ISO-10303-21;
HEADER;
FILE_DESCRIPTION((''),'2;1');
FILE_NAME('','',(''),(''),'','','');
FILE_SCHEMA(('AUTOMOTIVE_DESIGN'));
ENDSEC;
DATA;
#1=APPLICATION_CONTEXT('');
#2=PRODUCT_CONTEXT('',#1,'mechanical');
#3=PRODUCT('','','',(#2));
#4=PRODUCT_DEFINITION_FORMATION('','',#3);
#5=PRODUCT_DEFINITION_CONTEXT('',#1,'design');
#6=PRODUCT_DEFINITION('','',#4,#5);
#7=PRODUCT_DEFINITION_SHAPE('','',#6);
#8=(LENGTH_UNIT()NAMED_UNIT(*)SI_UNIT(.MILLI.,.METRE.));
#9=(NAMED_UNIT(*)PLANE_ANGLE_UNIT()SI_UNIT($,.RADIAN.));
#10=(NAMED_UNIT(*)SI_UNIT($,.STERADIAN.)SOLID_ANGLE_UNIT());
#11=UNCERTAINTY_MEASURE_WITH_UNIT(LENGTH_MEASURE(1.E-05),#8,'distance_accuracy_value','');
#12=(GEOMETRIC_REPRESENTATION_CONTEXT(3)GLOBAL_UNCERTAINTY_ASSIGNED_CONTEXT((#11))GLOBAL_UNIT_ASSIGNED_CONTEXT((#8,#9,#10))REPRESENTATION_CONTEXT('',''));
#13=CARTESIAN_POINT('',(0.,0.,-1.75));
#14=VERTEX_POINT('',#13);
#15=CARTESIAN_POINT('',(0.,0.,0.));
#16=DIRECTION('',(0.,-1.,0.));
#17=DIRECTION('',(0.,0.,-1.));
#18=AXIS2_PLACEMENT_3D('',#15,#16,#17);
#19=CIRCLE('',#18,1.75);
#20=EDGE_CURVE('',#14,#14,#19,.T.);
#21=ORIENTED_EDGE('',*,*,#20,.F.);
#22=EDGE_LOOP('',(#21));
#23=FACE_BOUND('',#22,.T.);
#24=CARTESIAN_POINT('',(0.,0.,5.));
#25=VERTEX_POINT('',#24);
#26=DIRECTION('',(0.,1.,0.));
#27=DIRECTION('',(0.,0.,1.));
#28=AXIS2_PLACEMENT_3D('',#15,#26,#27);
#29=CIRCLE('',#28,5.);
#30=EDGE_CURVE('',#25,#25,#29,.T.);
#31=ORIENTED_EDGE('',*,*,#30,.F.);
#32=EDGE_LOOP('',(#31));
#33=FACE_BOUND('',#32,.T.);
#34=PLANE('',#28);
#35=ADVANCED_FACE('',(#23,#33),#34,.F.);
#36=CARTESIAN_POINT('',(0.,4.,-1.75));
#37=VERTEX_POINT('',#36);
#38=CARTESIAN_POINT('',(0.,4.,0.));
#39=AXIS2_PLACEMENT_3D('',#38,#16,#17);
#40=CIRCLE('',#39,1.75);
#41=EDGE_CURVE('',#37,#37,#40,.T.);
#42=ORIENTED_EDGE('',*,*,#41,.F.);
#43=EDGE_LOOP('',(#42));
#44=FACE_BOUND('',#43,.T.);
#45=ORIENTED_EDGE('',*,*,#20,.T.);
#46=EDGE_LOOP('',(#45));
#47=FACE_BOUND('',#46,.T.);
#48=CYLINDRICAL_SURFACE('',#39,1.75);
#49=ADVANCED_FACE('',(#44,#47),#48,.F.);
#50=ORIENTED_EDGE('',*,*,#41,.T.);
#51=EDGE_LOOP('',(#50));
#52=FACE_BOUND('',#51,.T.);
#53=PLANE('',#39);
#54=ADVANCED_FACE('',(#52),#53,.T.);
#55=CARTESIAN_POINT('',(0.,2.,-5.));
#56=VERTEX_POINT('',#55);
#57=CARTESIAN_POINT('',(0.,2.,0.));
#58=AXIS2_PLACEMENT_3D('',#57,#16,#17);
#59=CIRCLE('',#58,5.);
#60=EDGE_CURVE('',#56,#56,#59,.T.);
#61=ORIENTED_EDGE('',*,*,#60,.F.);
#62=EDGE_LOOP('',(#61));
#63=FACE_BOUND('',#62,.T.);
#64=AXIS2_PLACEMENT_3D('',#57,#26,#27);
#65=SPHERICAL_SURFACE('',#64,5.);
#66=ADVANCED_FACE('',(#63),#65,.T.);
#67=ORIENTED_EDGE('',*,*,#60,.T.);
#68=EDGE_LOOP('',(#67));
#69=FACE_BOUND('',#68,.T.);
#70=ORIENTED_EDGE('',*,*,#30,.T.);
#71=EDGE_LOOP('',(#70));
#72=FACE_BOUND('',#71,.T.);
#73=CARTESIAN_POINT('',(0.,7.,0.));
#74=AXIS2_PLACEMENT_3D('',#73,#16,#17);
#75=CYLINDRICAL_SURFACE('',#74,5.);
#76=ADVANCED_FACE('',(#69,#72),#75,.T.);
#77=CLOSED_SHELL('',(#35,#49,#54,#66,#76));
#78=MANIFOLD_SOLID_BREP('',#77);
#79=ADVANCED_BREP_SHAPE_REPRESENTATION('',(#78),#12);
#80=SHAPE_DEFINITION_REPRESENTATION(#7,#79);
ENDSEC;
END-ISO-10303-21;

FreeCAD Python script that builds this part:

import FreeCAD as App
import Part
import Sketcher

V = App.Vector
Q = App.Units.Quantity


def edges_at(feature, points):
    """Names of the edges that pass closest to the given points."""
    edges = feature.Shape.Edges
    near = lambda p: min(range(len(edges)), key=lambda i: edges[i].distToShape(Part.Vertex(*p))[0])
    return sorted({f"Edge{near(p) + 1}" for p in points})

doc = App.newDocument("Part")
body = doc.addObject("PartDesign::Body", "Body")

sketch1 = body.newObject("Sketcher::SketchObject", "Sketch")
sketch1.AttachmentSupport = (doc.getObject("XZ_Plane"), [""])
sketch1.MapMode = "FlatFace"
sketch1.addGeometry(Part.Circle(V(0, 0, 0), V(0, 0, 1), 5), False)
sketch1.addConstraint(Sketcher.Constraint("Coincident", 0, 3, -1, 1))
sketch1.addConstraint(Sketcher.Constraint("Diameter", 0, Q("10 mm")))
pad1 = body.newObject("PartDesign::Pad", "Pad")
pad1.Profile = sketch1
pad1.Length = 7
pad1.Reversed = True
doc.recompute()

fillet = body.newObject("PartDesign::Fillet", "Fillet")
fillet.Base = (pad1, edges_at(pad1, [(-5, 7, 0)]))
fillet.Radius = 5

sketch2 = body.newObject("Sketcher::SketchObject", "Sketch001")
sketch2.AttachmentSupport = (doc.getObject("XZ_Plane"), [""])
sketch2.MapMode = "FlatFace"
sketch2.addGeometry(Part.Circle(V(0, 0, 0), V(0, 0, 1), 1.8), False)
sketch2.addConstraint(Sketcher.Constraint("Coincident", 0, 3, -1, 1))
sketch2.addConstraint(Sketcher.Constraint("Diameter", 0, Q("3.5 mm")))
pocket1 = body.newObject("PartDesign::Pocket", "Pocket")
pocket1.Profile = sketch2
pocket1.Length = 4

doc.recompute()
